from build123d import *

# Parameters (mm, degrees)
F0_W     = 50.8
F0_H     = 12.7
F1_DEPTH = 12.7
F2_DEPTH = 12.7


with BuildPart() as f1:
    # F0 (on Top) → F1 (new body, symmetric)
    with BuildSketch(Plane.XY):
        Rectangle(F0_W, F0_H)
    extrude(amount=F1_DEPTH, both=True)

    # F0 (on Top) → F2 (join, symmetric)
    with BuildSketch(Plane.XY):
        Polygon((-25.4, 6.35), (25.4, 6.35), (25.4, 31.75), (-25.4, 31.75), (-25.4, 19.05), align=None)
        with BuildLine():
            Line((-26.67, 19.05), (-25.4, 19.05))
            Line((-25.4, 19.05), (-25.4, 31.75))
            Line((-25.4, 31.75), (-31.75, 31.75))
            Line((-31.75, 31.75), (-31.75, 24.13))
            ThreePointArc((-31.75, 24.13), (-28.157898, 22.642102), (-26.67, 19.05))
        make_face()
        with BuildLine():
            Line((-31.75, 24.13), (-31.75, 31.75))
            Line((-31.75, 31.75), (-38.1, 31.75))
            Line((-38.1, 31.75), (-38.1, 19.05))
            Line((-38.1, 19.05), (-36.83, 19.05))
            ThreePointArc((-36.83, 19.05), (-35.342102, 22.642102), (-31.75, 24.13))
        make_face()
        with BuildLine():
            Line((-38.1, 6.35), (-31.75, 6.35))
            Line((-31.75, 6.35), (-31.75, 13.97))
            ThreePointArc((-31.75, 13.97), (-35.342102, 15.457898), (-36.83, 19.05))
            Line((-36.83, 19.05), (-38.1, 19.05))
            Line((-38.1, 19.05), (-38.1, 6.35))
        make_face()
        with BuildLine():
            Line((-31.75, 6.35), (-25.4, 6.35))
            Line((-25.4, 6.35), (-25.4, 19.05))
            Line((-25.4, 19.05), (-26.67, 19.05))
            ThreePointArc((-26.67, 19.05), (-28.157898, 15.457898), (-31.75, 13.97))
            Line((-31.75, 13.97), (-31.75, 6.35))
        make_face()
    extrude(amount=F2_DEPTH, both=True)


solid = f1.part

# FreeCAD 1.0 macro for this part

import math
import FreeCAD as App
import Part
import Sketcher

V = App.Vector
Q = App.Units.Quantity


def add_polygon(sketch, points):
    """Adds a closed chain of lines whose ends are joined by coincident constraints."""
    first, n = sketch.GeometryCount, len(points)
    for a, b in zip(points, points[1:] + points[:1]):
        sketch.addGeometry(Part.LineSegment(App.Vector(*a, 0), App.Vector(*b, 0)), False)
    for i in range(n):
        sketch.addConstraint(Sketcher.Constraint("Coincident", first + i, 2, first + (i + 1) % n, 1))

doc = App.newDocument("Part")
body = doc.addObject("PartDesign::Body", "Body")

# Sketch on XY plane
sketch1 = doc.addObject("Sketcher::SketchObject", "Sketch")
body.addObject(sketch1)
sketch1.AttachmentSupport = (doc.XY_Plane, [""])
sketch1.MapMode = "FlatFace"
add_polygon(sketch1, [(-25.4, 6.35), (-25.4, -6.35), (25.4, -6.35), (25.4, 6.35)])  # lines 0-3
sketch1.addConstraint([
    Sketcher.Constraint("Vertical", 0),
    Sketcher.Constraint("Horizontal", 1),
    Sketcher.Constraint("Vertical", 2),
    Sketcher.Constraint("Horizontal", 3),
    Sketcher.Constraint("Symmetric", 0, 2, 2, 2, -1, 1),
    Sketcher.Constraint("DistanceX", 1, 1, 1, 2, Q("2 in")),
    Sketcher.Constraint("DistanceY", 0, 2, 0, 1, Q("0.5 in")),
])
pad1 = doc.addObject("PartDesign::Pad", "Pad")
body.addObject(pad1)
pad1.Profile = sketch1
pad1.Length = Q("1 in")
pad1.Midplane = True

# Sketch on XY plane
sketch2 = doc.addObject("Sketcher::SketchObject", "Sketch001")
body.addObject(sketch2)
sketch2.AttachmentSupport = (doc.XY_Plane, [""])
sketch2.MapMode = "FlatFace"
add_polygon(sketch2, [(25.4, 6.35), (25.4, 31.75), (-38.1, 31.75), (-38.1, 6.35)])  # lines 0-3
sketch2.addGeometry(Part.ArcOfCircle(Part.Circle(V(-31.749998, 19.050002, 0), V(0, 0, 1), 5.080002), math.radians(-179.999983), math.radians(-90.000017)), False)  # 4
sketch2.addGeometry(Part.ArcOfCircle(Part.Circle(V(-31.749998, 19.049998, 0), V(0, 0, 1), 5.080002), math.radians(90.000017), math.radians(179.999983)), False)  # 5
sketch2.addGeometry(Part.ArcOfCircle(Part.Circle(V(-31.750002, 19.049998, 0), V(0, 0, 1), 5.080002), math.radians(0.000017), math.radians(89.999983)), False)  # 6
sketch2.addGeometry(Part.ArcOfCircle(Part.Circle(V(-31.750002, 19.050002, 0), V(0, 0, 1), 5.080002), math.radians(-89.999983), math.radians(-0.000017)), False)  # 7
sketch2.addConstraint([
    Sketcher.Constraint("Tangent", 4, 1, 5, 2),
    Sketcher.Constraint("Tangent", 5, 1, 6, 2),
    Sketcher.Constraint("Tangent", 6, 1, 7, 2),
    Sketcher.Constraint("Tangent", 7, 1, 4, 2),
    Sketcher.Constraint("Vertical", 0),
    Sketcher.Constraint("Horizontal", 1),
    Sketcher.Constraint("Vertical", 2),
    Sketcher.Constraint("Horizontal", 3),
    Sketcher.Constraint("Equal", 4, 5),
    Sketcher.Constraint("Horizontal", 7, 3, 4, 1),
    Sketcher.Constraint("Horizontal", 4, 1, 6, 1),
    Sketcher.Constraint("Vertical", 7, 3, 5, 1),
    Sketcher.Constraint("Vertical", 5, 1, 7, 1),
    Sketcher.Constraint("Radius", 4, Q("0.2000001 in")),
    Sketcher.Constraint("DistanceY", 0, 1, 0, 2, Q("1 in")),
    Sketcher.Constraint("DistanceX", 1, 2, 1, 1, Q("2.5 in")),
    Sketcher.Constraint("DistanceX", -1, 1, 0, 2, Q("1 in")),
    Sketcher.Constraint("DistanceY", 4, 3, 0, 2, Q("0.4999999 in")),
    Sketcher.Constraint("DistanceX", 4, 3, -1, 1, Q("1.2499999 in")),
    Sketcher.Constraint("DistanceY", -1, 1, 4, 3, Q("0.7500001 in")),
])
pad2 = doc.addObject("PartDesign::Pad", "Pad001")
body.addObject(pad2)
pad2.Profile = sketch2
pad2.Length = Q("1 in")
pad2.Midplane = True

doc.recompute()
